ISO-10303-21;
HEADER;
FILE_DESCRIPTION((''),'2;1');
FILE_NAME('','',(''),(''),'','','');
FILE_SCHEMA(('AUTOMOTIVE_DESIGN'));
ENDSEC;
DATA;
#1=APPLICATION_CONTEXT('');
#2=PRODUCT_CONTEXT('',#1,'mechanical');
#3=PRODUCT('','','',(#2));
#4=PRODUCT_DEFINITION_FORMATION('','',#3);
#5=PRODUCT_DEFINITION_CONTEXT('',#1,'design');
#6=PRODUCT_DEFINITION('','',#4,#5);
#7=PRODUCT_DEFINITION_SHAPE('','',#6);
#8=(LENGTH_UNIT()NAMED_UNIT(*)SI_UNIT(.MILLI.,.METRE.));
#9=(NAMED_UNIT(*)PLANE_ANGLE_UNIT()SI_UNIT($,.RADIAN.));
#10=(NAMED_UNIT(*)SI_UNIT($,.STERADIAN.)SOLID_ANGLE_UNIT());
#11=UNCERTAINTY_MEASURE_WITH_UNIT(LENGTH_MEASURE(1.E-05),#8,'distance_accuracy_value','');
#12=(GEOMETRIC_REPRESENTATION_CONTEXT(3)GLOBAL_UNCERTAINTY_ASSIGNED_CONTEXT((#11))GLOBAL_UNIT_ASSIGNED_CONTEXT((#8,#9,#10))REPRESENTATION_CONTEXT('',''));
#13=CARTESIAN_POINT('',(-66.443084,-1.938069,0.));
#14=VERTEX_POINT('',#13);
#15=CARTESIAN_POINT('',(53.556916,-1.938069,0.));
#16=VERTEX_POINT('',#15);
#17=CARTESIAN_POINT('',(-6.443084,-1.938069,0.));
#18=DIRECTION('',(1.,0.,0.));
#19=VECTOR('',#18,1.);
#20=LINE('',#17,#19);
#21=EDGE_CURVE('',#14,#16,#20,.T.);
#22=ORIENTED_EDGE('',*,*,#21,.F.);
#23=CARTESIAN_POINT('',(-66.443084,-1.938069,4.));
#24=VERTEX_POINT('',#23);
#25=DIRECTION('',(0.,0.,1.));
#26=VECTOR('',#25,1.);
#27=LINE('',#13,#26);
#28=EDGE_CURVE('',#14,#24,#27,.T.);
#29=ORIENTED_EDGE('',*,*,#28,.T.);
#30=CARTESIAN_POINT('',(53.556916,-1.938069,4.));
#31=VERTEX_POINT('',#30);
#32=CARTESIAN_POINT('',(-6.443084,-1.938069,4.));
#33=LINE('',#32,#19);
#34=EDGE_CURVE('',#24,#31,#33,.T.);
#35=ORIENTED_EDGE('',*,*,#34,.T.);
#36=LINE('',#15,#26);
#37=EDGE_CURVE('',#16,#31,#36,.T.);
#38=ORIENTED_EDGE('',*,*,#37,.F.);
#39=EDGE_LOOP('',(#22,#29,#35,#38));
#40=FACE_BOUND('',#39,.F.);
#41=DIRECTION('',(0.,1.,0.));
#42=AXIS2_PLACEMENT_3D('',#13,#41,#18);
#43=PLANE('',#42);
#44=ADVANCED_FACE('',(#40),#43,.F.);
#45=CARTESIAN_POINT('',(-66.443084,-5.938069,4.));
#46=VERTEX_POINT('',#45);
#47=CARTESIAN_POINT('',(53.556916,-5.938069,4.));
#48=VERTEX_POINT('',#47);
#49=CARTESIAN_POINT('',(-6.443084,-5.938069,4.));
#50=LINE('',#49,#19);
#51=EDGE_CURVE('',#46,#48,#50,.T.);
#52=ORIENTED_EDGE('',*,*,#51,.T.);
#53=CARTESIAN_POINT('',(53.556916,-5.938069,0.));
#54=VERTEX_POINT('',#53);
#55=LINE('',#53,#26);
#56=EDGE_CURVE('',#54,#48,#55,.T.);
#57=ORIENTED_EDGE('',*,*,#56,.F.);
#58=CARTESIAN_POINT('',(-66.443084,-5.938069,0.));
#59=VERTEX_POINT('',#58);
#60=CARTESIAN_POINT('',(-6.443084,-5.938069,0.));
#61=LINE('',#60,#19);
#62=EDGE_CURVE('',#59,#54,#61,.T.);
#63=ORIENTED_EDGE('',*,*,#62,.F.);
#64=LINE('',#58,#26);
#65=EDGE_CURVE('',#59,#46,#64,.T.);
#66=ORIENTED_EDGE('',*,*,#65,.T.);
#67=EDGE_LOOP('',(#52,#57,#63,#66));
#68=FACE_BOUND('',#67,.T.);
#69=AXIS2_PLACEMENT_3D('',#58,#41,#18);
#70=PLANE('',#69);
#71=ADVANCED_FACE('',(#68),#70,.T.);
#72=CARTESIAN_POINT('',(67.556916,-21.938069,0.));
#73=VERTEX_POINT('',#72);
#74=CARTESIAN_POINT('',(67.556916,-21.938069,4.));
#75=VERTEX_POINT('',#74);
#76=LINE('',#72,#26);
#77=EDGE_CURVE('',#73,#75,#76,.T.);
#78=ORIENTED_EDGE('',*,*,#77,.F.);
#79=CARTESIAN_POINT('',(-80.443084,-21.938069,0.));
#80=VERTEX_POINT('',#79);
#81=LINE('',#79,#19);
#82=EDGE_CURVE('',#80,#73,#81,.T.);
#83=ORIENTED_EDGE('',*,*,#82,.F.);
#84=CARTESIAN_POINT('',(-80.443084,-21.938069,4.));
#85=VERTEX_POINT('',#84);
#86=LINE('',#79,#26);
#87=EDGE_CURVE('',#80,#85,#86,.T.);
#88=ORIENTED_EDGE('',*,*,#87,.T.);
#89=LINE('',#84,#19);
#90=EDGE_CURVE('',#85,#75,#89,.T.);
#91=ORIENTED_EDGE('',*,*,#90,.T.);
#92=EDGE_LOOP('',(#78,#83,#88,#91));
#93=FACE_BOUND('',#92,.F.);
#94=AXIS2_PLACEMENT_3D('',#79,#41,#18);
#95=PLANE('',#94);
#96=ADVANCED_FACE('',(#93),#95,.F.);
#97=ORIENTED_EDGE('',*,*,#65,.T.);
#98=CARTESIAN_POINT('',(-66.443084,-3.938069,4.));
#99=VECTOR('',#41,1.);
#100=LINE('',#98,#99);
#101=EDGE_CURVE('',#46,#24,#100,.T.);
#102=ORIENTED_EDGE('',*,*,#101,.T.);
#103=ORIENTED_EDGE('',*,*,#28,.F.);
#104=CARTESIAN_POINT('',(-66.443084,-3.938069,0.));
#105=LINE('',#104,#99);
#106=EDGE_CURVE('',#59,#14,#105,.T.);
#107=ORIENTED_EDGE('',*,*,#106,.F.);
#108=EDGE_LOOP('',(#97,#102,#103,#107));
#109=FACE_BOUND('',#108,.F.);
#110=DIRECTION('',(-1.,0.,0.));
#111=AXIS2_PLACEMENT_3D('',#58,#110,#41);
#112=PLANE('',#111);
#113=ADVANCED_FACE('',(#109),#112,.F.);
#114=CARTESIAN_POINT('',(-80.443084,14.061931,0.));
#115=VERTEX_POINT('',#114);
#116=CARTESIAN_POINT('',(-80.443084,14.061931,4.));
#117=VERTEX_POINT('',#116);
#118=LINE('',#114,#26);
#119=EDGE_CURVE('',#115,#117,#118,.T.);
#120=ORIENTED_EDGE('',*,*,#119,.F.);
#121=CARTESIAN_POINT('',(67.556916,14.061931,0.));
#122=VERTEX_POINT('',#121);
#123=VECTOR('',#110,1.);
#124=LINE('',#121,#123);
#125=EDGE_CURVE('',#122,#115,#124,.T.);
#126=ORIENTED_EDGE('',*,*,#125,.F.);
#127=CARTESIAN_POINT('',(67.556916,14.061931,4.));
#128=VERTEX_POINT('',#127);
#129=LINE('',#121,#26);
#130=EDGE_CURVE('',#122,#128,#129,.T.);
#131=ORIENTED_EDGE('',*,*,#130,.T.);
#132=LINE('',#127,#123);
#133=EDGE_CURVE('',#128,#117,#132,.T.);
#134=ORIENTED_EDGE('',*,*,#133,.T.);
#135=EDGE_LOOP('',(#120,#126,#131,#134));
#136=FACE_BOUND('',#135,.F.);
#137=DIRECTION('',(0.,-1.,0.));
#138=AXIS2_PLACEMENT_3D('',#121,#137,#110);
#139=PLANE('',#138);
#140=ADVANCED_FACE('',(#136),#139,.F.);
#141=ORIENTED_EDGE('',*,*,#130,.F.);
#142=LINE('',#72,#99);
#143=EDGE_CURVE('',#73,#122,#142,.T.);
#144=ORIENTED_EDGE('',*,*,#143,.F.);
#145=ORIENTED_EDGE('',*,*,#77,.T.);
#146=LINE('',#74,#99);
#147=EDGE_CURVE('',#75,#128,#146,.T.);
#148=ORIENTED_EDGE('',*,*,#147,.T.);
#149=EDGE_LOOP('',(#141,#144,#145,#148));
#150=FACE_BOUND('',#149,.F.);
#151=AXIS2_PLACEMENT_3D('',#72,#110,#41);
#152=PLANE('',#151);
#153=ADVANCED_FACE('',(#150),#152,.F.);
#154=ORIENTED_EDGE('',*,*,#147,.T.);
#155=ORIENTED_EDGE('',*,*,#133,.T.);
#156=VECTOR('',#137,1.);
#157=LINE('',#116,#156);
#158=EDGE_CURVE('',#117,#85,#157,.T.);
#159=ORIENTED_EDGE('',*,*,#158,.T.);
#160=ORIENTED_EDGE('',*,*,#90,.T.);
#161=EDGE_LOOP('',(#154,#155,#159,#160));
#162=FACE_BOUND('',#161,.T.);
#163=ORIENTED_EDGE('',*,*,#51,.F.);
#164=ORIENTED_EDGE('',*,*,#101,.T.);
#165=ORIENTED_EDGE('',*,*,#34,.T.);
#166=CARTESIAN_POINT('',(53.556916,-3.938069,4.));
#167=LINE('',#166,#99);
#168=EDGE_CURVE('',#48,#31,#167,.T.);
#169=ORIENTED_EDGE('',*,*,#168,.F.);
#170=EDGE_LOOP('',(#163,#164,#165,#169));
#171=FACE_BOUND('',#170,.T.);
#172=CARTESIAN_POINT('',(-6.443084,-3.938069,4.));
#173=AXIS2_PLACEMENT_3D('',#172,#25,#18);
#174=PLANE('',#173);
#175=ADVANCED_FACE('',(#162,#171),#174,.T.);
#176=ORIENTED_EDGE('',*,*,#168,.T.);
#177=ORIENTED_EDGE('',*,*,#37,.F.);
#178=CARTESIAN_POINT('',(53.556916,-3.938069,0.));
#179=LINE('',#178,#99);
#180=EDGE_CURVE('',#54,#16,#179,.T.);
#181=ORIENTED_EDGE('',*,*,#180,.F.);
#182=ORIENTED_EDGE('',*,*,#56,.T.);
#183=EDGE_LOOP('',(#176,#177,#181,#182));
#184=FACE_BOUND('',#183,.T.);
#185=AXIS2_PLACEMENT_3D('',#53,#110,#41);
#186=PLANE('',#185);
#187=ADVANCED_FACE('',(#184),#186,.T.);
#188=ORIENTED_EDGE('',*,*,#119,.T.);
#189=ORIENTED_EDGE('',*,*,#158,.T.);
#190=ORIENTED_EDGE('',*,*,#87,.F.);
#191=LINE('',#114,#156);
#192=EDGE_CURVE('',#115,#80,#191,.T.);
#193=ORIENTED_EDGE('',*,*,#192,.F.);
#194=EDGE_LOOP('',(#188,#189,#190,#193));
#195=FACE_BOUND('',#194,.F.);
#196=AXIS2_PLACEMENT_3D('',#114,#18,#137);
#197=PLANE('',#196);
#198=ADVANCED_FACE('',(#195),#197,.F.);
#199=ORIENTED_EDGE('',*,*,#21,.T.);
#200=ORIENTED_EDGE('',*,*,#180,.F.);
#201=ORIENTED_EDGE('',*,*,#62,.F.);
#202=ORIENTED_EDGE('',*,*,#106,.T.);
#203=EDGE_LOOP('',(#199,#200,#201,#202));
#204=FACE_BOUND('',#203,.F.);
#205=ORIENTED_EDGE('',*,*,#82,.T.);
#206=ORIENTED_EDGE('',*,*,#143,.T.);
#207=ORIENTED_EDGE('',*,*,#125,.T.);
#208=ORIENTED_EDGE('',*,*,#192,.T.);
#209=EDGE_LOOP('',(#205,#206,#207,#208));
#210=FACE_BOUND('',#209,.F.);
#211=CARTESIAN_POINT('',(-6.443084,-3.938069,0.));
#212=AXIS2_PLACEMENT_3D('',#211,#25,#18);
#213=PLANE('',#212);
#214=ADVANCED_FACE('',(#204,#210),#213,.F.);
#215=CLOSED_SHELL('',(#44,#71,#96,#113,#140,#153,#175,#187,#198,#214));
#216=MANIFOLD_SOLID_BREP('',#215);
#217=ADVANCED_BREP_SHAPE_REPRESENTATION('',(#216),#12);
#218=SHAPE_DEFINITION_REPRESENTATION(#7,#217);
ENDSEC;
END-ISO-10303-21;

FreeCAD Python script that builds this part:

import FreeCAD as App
import Part
import Sketcher
from FreeCAD import Vector
Q = App.Units.Quantity


def add_polygon(sketch, points):
    """Adds a closed chain of lines whose ends are joined by coincident constraints."""
    first, n = sketch.GeometryCount, len(points)
    for a, b in zip(points, points[1:] + points[:1]):
        sketch.addGeometry(Part.LineSegment(App.Vector(*a, 0), App.Vector(*b, 0)), False)
    for i in range(n):
        sketch.addConstraint(Sketcher.Constraint("Coincident", first + i, 2, first + (i + 1) % n, 1))

doc = App.newDocument("Part")
body = doc.addObject("PartDesign::Body", "Body")

# Sketch on XY plane
sketch1 = doc.addObject("Sketcher::SketchObject", "Sketch")
body.addObject(sketch1)
sketch1.AttachmentSupport = (doc.XY_Plane, [""])
sketch1.MapMode = "FlatFace"
add_polygon(sketch1, [(67.6, 14.1), (-80.4, 14.1), (-80.4, -21.9), (67.6, -21.9)])  # lines 0-3
add_polygon(sketch1, [(53.6, -5.9), (-66.4, -5.9), (-66.4, -1.9), (53.6, -1.9)])  # lines 4-7
sketch1.addConstraint([
    Sketcher.Constraint("Horizontal", 0),
    Sketcher.Constraint("Vertical", 1),
    Sketcher.Constraint("Horizontal", 2),
    Sketcher.Constraint("Vertical", 3),
    Sketcher.Constraint("Horizontal", 4),
    Sketcher.Constraint("Vertical", 5),
    Sketcher.Constraint("Horizontal", 6),
    Sketcher.Constraint("Vertical", 7),
    Sketcher.Constraint("DistanceX", 0, 2, 0, 1, Q("148 mm")),
    Sketcher.Constraint("DistanceX", 4, 2, 4, 1, Q("120 mm")),
    Sketcher.Constraint("DistanceY", 1, 2, 1, 1, Q("36 mm")),
    Sketcher.Constraint("DistanceY", 5, 1, 5, 2, Q("4 mm")),
    Sketcher.Constraint("DistanceX", 1, 2, 4, 2, Q("14 mm")),
    Sketcher.Constraint("DistanceY", 1, 2, 4, 2, Q("16 mm")),
    Sketcher.Constraint("DistanceY", -1, 1, 0, 2, Q("14.061931 mm")),
    Sketcher.Constraint("DistanceX", 0, 2, -1, 1, Q("80.443084 mm")),
])
pad1 = doc.addObject("PartDesign::Pad", "Pad")
body.addObject(pad1)
pad1.Profile = sketch1
pad1.Length = 4

doc.recompute()
